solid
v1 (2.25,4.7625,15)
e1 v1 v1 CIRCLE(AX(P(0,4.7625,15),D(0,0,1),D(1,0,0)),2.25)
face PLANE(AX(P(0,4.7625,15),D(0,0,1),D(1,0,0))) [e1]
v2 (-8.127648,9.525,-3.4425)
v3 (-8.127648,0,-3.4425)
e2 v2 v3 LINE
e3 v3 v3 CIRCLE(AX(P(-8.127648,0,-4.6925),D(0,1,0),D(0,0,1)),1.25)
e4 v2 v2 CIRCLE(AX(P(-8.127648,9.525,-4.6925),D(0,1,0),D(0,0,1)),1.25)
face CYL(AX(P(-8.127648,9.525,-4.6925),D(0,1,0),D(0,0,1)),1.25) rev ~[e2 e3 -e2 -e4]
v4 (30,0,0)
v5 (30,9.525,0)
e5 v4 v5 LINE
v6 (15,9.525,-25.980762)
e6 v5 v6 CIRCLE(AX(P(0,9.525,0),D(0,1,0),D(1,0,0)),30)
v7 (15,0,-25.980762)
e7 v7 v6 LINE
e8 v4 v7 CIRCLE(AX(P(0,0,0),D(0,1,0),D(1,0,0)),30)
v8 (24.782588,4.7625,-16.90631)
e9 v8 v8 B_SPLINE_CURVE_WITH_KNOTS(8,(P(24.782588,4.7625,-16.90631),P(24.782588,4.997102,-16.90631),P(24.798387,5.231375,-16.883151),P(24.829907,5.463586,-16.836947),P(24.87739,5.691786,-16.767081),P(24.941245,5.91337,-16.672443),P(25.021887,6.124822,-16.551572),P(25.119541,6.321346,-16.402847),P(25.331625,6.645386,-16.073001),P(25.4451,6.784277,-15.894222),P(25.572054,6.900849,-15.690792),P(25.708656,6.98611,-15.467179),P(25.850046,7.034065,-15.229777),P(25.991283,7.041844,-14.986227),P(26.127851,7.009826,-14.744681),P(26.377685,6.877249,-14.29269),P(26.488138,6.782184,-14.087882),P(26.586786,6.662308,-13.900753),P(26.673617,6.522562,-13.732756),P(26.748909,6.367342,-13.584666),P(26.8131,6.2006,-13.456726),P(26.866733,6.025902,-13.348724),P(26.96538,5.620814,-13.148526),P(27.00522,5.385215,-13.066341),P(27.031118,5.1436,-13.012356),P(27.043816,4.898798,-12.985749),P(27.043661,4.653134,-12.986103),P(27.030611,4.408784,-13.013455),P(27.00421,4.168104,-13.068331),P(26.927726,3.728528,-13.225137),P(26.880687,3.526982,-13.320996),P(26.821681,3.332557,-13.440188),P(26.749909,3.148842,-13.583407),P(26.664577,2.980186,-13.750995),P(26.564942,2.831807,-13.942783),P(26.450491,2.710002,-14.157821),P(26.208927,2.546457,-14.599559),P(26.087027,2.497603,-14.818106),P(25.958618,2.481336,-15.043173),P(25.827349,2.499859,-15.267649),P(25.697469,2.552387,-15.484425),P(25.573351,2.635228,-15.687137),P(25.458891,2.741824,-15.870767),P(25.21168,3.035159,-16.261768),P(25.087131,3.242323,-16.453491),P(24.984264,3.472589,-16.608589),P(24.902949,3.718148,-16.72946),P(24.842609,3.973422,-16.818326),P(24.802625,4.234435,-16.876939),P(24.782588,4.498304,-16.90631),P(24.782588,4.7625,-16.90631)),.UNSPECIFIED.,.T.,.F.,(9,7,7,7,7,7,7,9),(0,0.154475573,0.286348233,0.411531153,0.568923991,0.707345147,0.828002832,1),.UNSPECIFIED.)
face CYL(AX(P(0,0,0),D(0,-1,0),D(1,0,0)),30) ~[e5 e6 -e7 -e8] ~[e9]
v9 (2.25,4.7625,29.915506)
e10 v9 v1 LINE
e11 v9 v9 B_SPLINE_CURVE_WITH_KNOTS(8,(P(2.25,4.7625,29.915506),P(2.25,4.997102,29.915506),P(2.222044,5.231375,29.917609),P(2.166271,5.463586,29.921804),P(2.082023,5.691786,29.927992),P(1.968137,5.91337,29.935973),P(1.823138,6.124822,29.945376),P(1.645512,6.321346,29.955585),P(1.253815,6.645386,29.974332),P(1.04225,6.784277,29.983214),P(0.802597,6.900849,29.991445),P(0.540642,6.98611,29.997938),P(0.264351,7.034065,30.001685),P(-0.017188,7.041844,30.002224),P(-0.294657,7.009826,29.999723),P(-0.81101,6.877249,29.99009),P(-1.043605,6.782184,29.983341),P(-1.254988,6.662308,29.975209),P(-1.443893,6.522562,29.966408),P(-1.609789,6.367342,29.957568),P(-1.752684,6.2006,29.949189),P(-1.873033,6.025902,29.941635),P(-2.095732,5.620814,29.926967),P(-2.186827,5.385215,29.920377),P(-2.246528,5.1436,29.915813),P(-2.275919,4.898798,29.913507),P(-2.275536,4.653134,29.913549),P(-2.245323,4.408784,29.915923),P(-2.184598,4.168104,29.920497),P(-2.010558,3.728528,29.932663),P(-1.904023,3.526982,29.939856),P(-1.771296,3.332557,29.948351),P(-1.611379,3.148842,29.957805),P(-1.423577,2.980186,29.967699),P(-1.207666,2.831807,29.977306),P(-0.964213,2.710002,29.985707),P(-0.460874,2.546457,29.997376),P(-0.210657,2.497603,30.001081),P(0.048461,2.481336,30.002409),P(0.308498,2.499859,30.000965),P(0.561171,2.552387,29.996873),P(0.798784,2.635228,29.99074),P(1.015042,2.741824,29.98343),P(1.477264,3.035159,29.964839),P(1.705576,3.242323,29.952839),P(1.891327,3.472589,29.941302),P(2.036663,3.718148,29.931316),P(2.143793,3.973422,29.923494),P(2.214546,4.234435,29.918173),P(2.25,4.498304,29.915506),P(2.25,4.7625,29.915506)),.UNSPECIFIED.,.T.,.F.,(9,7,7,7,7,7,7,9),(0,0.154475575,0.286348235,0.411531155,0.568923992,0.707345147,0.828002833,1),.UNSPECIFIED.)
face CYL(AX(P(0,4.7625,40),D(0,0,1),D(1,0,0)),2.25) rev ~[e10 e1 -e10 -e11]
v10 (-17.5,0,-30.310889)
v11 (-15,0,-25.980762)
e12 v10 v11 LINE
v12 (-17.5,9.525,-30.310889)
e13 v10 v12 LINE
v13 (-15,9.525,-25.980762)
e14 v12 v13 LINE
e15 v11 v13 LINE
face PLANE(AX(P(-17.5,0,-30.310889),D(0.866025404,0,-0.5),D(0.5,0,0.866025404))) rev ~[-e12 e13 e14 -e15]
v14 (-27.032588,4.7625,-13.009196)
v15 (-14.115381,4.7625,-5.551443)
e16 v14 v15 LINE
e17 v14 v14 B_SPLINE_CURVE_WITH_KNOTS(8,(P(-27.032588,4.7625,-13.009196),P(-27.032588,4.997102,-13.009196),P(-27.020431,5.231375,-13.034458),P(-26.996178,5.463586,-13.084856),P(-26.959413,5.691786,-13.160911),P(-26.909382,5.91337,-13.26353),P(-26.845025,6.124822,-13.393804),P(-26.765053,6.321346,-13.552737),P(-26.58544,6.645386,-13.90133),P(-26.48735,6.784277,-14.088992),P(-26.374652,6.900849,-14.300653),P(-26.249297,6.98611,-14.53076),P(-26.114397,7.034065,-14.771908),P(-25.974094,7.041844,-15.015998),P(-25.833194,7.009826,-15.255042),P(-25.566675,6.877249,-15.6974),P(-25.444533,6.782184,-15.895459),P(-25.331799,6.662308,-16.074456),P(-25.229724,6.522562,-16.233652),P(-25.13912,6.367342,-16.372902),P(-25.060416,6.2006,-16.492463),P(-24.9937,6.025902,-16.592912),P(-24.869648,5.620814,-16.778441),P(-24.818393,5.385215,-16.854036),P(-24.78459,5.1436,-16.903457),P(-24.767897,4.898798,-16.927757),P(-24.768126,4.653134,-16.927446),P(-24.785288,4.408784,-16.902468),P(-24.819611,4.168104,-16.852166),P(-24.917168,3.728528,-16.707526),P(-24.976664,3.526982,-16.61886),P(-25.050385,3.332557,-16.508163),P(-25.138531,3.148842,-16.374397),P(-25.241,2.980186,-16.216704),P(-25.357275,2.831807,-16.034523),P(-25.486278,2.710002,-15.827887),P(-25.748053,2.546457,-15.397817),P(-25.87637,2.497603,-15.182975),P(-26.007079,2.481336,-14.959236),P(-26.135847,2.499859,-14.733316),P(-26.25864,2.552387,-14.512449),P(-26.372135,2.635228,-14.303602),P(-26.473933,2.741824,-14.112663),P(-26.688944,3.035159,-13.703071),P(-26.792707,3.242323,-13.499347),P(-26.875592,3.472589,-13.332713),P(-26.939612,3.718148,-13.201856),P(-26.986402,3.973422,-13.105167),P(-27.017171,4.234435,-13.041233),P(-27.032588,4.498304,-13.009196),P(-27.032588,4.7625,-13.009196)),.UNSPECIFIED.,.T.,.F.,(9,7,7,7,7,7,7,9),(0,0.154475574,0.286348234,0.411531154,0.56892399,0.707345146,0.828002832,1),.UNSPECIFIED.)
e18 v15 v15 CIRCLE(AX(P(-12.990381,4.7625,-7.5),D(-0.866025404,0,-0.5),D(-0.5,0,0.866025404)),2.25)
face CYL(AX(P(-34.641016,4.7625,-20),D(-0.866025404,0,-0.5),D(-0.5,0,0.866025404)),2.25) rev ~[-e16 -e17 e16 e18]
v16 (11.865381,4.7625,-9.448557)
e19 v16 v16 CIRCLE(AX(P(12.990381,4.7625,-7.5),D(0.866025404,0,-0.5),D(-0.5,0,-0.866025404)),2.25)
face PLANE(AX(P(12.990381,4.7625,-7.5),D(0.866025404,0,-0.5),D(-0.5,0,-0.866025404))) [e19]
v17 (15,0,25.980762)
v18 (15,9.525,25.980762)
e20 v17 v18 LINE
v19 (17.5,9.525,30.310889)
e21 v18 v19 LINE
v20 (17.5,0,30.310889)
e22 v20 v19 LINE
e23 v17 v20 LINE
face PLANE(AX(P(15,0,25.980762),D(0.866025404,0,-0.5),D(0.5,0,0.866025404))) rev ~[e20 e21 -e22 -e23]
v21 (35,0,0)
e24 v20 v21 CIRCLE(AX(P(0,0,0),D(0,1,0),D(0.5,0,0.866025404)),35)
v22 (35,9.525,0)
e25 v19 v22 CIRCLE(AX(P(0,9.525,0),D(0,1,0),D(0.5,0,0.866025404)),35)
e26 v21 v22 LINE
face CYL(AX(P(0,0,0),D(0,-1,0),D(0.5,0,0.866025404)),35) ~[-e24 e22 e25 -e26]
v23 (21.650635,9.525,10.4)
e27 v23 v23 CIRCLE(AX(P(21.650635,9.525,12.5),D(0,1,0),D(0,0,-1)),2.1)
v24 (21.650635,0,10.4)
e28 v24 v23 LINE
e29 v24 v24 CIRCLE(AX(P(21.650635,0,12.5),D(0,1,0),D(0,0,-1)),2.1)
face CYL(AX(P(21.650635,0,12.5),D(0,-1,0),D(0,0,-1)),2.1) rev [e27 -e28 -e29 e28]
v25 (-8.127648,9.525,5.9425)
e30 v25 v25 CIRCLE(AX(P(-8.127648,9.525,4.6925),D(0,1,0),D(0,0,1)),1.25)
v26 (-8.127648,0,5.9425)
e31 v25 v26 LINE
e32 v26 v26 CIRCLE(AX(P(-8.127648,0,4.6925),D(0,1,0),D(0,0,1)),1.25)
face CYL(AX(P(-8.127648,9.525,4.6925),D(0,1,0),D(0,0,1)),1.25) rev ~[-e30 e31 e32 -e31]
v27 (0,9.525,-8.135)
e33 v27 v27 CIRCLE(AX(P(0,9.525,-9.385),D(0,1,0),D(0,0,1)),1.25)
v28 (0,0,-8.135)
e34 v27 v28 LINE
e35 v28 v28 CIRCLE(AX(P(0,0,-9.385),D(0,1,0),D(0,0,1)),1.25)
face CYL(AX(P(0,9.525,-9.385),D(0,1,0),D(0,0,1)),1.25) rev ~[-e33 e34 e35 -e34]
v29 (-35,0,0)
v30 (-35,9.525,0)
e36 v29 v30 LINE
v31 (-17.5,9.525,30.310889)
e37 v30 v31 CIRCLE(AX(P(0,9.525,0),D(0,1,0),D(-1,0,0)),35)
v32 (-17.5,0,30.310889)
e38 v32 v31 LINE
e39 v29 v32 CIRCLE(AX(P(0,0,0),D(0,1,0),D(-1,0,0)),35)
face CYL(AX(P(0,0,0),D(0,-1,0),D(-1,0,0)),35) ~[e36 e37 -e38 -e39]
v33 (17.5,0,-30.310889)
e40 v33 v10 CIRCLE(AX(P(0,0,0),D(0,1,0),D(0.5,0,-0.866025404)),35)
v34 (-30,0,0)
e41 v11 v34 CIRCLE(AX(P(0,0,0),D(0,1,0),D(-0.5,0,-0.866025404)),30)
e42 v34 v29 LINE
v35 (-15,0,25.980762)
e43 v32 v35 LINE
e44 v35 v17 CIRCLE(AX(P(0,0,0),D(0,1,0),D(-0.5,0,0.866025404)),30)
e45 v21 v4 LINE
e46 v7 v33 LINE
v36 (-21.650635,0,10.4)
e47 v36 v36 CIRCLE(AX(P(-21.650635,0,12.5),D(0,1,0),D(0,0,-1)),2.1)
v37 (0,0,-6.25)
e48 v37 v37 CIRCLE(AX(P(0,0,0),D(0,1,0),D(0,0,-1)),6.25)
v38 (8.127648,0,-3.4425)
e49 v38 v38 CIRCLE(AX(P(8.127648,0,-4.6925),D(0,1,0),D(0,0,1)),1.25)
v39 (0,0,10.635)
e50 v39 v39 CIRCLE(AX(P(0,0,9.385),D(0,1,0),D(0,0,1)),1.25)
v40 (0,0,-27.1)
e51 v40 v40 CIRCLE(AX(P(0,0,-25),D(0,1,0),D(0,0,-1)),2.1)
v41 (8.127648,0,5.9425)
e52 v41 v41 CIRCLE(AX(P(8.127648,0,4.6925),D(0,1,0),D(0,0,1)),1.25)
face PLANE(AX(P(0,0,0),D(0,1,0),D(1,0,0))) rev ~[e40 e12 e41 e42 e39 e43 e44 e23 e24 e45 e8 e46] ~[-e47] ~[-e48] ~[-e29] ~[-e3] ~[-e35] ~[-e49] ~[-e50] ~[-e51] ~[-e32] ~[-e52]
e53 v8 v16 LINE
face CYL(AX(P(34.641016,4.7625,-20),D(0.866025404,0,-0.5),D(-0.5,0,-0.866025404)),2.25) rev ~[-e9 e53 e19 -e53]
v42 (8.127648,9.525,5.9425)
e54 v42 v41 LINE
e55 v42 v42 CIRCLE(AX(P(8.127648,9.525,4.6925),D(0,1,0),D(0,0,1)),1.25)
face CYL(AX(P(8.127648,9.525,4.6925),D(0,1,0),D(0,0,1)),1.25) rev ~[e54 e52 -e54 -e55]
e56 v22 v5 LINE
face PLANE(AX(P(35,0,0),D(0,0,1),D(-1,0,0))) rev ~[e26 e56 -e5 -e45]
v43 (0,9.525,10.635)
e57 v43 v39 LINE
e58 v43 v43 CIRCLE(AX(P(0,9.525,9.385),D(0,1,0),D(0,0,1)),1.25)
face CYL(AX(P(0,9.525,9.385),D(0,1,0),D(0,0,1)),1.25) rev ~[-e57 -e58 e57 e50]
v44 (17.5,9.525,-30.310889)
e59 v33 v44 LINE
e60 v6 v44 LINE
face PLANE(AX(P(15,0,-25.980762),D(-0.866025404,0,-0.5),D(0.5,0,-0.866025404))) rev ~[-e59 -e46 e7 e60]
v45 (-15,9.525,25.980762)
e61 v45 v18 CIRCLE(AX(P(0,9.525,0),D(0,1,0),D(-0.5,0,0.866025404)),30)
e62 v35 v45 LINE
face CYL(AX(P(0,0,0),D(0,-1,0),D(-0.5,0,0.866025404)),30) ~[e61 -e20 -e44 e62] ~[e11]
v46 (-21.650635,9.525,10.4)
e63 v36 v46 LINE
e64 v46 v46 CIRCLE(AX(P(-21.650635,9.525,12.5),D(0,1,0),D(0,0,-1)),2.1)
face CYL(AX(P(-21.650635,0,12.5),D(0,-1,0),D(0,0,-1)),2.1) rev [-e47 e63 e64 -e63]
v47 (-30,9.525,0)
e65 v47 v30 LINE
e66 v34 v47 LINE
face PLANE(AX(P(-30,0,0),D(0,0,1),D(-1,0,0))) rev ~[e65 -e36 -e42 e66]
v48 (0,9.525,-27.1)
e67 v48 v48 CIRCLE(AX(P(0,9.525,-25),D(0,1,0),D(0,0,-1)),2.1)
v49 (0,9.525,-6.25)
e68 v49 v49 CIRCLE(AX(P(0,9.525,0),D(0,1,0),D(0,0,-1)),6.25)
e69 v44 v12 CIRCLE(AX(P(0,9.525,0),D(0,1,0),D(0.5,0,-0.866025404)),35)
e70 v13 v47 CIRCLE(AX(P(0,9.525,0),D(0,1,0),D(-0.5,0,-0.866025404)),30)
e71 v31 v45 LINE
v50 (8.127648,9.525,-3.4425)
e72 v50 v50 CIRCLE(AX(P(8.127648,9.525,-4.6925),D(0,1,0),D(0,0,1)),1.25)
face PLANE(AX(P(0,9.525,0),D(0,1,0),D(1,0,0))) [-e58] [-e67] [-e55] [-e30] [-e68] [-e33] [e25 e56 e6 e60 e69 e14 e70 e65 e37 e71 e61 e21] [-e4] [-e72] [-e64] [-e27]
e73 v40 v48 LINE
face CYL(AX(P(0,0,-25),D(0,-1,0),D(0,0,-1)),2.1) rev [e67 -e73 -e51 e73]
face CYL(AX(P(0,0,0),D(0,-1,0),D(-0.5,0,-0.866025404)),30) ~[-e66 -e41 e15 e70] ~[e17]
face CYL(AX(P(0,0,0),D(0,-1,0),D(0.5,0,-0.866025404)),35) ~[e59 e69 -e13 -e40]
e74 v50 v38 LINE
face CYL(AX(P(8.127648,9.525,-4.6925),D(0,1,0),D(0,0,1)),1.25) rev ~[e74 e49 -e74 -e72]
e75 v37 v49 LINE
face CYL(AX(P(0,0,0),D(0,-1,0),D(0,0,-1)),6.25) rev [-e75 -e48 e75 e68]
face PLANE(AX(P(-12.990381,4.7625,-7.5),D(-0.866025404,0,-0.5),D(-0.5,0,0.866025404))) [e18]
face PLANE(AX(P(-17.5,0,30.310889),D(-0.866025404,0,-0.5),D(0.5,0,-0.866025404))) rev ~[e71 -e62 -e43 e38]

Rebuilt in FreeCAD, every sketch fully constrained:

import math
import FreeCAD as App
import Part
import Sketcher

V = App.Vector
Q = App.Units.Quantity

doc = App.newDocument("Part")
body = doc.addObject("PartDesign::Body", "Body")

sketch1 = doc.addObject("Sketcher::SketchObject", "Sketch")
body.addObject(sketch1)
sketch1.AttachmentSupport = (doc.XZ_Plane, [""])
sketch1.MapMode = "FlatFace"
sketch1.addGeometry([
    Part.ArcOfCircle(Part.Circle(V(0, 0, 0), V(0, 0, 1), 35), math.radians(-120), math.radians(-60)),
    Part.LineSegment(V(-17.5, -30.3, 0), V(-15, -26, 0)),
    Part.ArcOfCircle(Part.Circle(V(0, 0, 0), V(0, 0, 1), 30), math.radians(180), math.radians(240)),
    Part.LineSegment(V(-30, 0, 0), V(-35, 0, 0)),
    Part.ArcOfCircle(Part.Circle(V(0, 0, 0), V(0, 0, 1), 35), math.radians(120), math.radians(180)),
    Part.LineSegment(V(-17.5, 30.3, 0), V(-15, 26, 0)),
    Part.ArcOfCircle(Part.Circle(V(0, 0, 0), V(0, 0, 1), 30), math.radians(60), math.radians(120)),
    Part.LineSegment(V(15, 26, 0), V(17.5, 30.3, 0)),
    Part.ArcOfCircle(Part.Circle(V(0, 0, 0), V(0, 0, 1), 35), math.radians(0), math.radians(60)),
    Part.LineSegment(V(35, 0, 0), V(30, 0, 0)),
    Part.ArcOfCircle(Part.Circle(V(0, 0, 0), V(0, 0, 1), 30), math.radians(-60), math.radians(0)),
    Part.LineSegment(V(15, -26, 0), V(17.5, -30.3, 0)),
    Part.Circle(V(-21.7, 12.5, 0), V(0, 0, 1), 2.1),
    Part.Circle(V(21.7, 12.5, 0), V(0, 0, 1), 2.1),
    Part.Circle(V(0, 0, 0), V(0, 0, 1), 6.2),
    Part.Circle(V(0, -25, 0), V(0, 0, 1), 2.1),
], False)
sketch1.addConstraint([
    Sketcher.Constraint("Coincident", 0, 1, 1, 1),
    Sketcher.Constraint("Coincident", 1, 2, 2, 2),
    Sketcher.Constraint("Coincident", 2, 1, 3, 1),
    Sketcher.Constraint("Coincident", 3, 2, 4, 2),
    Sketcher.Constraint("Coincident", 4, 1, 5, 1),
    Sketcher.Constraint("Coincident", 5, 2, 6, 2),
    Sketcher.Constraint("Coincident", 6, 1, 7, 1),
    Sketcher.Constraint("Coincident", 7, 2, 8, 2),
    Sketcher.Constraint("Coincident", 8, 1, 9, 1),
    Sketcher.Constraint("Coincident", 9, 2, 10, 2),
    Sketcher.Constraint("Coincident", 10, 1, 11, 1),
    Sketcher.Constraint("Coincident", 11, 2, 0, 2),
    Sketcher.Constraint("Horizontal", 3),
    Sketcher.Constraint("Horizontal", 9),
    Sketcher.Constraint("Coincident", 0, 3, -1, 1),
    Sketcher.Constraint("Coincident", 2, 3, -1, 1),
    Sketcher.Constraint("Coincident", 4, 3, -1, 1),
    Sketcher.Constraint("Coincident", 6, 3, -1, 1),
    Sketcher.Constraint("Coincident", 8, 3, -1, 1),
    Sketcher.Constraint("Coincident", 10, 3, -1, 1),
    Sketcher.Constraint("Coincident", 14, 3, -1, 1),
    Sketcher.Constraint("Equal", 0, 4),
    Sketcher.Constraint("Equal", 2, 6),
    Sketcher.Constraint("Equal", 4, 8),
    Sketcher.Constraint("Equal", 6, 10),
    Sketcher.Constraint("Equal", 12, 13),
    Sketcher.Constraint("Equal", 13, 15),
    Sketcher.Constraint("Symmetric", 12, 3, 13, 3, -2),
    Sketcher.Constraint("PointOnObject", 15, 3, -2),
    Sketcher.Constraint("PointOnObject", 2, 1, -1),
    Sketcher.Constraint("PointOnObject", 8, 1, -1),
    Sketcher.Constraint("Parallel", 1, 7),
    Sketcher.Constraint("Parallel", 5, 11),
    Sketcher.Constraint("Horizontal", 5, 2, 6, 1),
    Sketcher.Constraint("Horizontal", 4, 1, 7, 2),
    Sketcher.Constraint("Horizontal", 1, 2, 10, 1),
    Sketcher.Constraint("Vertical", 0, 1, 4, 1),
    Sketcher.Constraint("Radius", 0, Q("35 mm")),
    Sketcher.Constraint("Radius", 2, Q("30 mm")),
    Sketcher.Constraint("Diameter", 12, Q("4.2 mm")),
    Sketcher.Constraint("Diameter", 14, Q("12.5 mm")),
    Sketcher.Constraint("Angle", 1, Q("60 deg")),
    Sketcher.Constraint("DistanceY", 15, 3, -1, 1, Q("25 mm")),
    Sketcher.Constraint("DistanceX", 1, 2, -1, 1, Q("15 mm")),
    Sketcher.Constraint("DistanceY", -1, 1, 12, 3, Q("12.5 mm")),
    Sketcher.Constraint("DistanceX", 12, 3, -1, 1, Q("21.650635 mm")),
])
pad1 = doc.addObject("PartDesign::Pad", "Pad")
body.addObject(pad1)
pad1.Profile = sketch1
pad1.Length = 9.525
pad1.Reversed = True

sketch2 = doc.addObject("Sketcher::SketchObject", "Sketch001")
body.addObject(sketch2)
sketch2.AttachmentSupport = (doc.XY_Plane, [""])
sketch2.MapMode = "FlatFace"
sketch2.AttachmentOffset = App.Placement(V(0, 0, 40), App.Rotation())
sketch2.addGeometry(Part.Circle(V(0, 4.8, 0), V(0, 0, 1), 2.2), False)
sketch2.addConstraint([
    Sketcher.Constraint("PointOnObject", 0, 3, -2),
    Sketcher.Constraint("Diameter", 0, Q("4.5 mm")),
    Sketcher.Constraint("DistanceY", -1, 1, 0, 3, Q("4.7625 mm")),
])
pocket1 = doc.addObject("PartDesign::Pocket", "Pocket")
body.addObject(pocket1)
pocket1.Profile = sketch2
pocket1.Length = 25
doc.recompute()

polarpattern = doc.addObject("PartDesign::PolarPattern", "PolarPattern")
body.addObject(polarpattern)
polarpattern.Originals = [pocket1]
polarpattern.Axis = (doc.Y_Axis, [""])
polarpattern.Angle = 360
polarpattern.Occurrences = 3
body.Tip = polarpattern

sketch3 = doc.addObject("Sketcher::SketchObject", "Sketch002")
body.addObject(sketch3)
sketch3.AttachmentSupport = (doc.XZ_Plane, [""])
sketch3.MapMode = "FlatFace"
sketch3.AttachmentOffset = App.Placement(V(0, 0, -9.525), App.Rotation())
sketch3.addGeometry([
    Part.Circle(V(-8.1, 4.7, 0), V(0, 0, 1), 1.2),
    Part.Circle(V(0, 9.4, 0), V(0, 0, 1), 1.2),
    Part.Circle(V(-8.1, -4.7, 0), V(0, 0, 1), 1.2),
    Part.Circle(V(0, -9.4, 0), V(0, 0, 1), 1.2),
    Part.Circle(V(8.1, -4.7, 0), V(0, 0, 1), 1.2),
    Part.Circle(V(8.1, 4.7, 0), V(0, 0, 1), 1.2),
], False)
sketch3.addConstraint([
    Sketcher.Constraint("Equal", 0, 1),
    Sketcher.Constraint("Equal", 1, 2),
    Sketcher.Constraint("Equal", 2, 3),
    Sketcher.Constraint("Equal", 3, 4),
    Sketcher.Constraint("Equal", 4, 5),
    Sketcher.Constraint("Symmetric", 1, 3, 3, 3, -1, 1),
    Sketcher.Constraint("Symmetric", 0, 3, 4, 3, -1, 1),
    Sketcher.Constraint("Symmetric", 2, 3, 5, 3, -1, 1),
    Sketcher.Constraint("Symmetric", 2, 3, 4, 3, -2),
    Sketcher.Constraint("PointOnObject", 1, 3, -2),
    Sketcher.Constraint("Diameter", 0, Q("2.5 mm")),
    Sketcher.Constraint("DistanceY", 3, 3, 1, 3, Q("18.77 mm")),
    Sketcher.Constraint("DistanceY", 2, 3, 0, 3, Q("9.385 mm")),
    Sketcher.Constraint("DistanceX", 0, 3, -1, 1, Q("8.127648 mm")),
])
pocket2 = doc.addObject("PartDesign::Pocket", "Pocket001")
body.addObject(pocket2)
pocket2.Profile = sketch3
pocket2.Length = 9.525
pocket2.Reversed = True

doc.recompute()
